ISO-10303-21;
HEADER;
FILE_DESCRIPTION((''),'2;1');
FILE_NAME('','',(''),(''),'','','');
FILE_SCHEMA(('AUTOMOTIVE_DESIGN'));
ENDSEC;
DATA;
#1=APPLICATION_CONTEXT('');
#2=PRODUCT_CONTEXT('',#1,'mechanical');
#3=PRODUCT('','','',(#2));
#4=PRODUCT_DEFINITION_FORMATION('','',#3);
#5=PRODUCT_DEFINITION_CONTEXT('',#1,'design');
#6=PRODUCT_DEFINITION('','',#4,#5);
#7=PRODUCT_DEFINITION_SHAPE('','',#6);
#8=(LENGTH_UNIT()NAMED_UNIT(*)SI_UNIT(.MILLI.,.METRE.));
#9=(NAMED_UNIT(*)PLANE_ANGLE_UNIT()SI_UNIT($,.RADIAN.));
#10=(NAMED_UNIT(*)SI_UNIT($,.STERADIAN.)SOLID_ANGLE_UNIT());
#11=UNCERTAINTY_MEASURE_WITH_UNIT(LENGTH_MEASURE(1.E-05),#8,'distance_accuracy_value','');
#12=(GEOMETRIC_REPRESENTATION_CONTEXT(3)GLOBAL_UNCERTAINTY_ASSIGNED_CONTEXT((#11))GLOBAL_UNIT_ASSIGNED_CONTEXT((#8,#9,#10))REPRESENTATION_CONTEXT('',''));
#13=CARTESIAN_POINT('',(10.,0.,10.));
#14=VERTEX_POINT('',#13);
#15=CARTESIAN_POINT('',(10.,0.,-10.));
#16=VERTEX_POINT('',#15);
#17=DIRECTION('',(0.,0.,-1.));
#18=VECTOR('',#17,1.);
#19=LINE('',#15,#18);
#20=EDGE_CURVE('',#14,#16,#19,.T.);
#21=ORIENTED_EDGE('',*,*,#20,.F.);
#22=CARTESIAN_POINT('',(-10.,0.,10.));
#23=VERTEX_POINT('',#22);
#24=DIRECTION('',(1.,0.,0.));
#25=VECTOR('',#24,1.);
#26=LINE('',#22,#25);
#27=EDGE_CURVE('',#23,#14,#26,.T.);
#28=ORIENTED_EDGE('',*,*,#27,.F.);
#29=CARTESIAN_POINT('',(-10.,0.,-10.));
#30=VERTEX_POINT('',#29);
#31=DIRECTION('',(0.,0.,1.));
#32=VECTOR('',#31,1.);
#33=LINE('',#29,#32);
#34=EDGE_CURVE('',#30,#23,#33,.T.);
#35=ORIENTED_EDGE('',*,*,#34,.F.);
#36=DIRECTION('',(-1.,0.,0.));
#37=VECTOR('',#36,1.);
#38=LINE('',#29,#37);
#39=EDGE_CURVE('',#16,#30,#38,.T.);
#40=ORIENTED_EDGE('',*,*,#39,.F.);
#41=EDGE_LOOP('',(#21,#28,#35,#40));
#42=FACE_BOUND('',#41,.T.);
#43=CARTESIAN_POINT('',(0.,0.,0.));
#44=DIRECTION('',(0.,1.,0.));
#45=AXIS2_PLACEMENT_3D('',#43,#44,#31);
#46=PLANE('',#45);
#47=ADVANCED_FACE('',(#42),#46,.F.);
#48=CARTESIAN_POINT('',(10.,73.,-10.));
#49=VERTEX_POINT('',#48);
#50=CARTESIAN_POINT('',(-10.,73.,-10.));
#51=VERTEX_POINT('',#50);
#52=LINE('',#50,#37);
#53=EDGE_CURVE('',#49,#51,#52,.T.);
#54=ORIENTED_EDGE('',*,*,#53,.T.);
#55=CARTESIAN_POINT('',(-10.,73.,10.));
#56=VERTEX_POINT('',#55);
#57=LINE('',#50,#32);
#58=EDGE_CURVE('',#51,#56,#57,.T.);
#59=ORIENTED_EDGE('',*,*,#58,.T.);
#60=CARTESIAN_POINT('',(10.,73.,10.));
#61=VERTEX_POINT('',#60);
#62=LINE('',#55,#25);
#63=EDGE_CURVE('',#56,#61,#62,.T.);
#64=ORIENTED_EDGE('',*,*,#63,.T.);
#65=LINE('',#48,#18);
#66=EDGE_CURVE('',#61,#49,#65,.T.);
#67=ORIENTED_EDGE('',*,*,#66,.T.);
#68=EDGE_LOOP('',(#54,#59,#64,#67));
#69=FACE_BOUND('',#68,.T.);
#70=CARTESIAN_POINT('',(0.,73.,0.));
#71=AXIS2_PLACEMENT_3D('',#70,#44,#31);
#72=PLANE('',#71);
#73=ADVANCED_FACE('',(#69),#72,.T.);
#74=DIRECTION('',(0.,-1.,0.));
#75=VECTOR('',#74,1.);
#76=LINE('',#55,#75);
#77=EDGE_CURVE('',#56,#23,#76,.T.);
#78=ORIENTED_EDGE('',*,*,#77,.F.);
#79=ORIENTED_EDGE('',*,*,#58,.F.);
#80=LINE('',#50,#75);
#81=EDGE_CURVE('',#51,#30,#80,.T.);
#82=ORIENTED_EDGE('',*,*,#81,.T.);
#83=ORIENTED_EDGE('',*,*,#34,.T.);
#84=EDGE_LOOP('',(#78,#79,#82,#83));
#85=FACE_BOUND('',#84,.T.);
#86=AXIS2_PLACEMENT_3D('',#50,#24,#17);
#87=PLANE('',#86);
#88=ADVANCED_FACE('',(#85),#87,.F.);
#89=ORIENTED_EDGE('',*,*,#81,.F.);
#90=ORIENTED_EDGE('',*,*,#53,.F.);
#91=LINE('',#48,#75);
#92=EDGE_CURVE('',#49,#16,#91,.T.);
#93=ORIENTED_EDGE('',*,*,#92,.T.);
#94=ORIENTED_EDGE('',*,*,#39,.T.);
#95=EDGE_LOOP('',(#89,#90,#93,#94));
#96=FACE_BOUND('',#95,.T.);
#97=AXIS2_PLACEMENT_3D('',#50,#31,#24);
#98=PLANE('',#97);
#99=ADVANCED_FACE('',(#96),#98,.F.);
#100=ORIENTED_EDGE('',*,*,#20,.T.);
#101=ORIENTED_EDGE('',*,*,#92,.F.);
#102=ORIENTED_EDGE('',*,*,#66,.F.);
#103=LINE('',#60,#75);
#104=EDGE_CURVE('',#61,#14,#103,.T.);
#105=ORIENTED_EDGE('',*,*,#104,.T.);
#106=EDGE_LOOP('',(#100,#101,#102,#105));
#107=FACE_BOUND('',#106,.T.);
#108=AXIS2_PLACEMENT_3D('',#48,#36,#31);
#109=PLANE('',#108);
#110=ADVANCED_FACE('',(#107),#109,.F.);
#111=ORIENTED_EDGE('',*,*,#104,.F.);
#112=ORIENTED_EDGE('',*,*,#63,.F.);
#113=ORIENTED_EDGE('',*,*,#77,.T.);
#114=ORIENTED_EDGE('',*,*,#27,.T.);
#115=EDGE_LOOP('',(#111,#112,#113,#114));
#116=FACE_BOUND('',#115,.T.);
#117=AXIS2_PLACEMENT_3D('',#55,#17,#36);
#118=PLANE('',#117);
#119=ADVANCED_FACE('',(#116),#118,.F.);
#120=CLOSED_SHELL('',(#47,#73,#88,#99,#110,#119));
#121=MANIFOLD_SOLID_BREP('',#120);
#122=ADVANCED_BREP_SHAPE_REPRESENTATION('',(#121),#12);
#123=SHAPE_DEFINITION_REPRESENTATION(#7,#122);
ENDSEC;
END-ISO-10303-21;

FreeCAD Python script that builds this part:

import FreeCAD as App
import Part
import Sketcher
Q = App.Units.Quantity


def add_polygon(sketch, points):
    """Adds a closed chain of lines whose ends are joined by coincident constraints."""
    first, n = sketch.GeometryCount, len(points)
    for a, b in zip(points, points[1:] + points[:1]):
        sketch.addGeometry(Part.LineSegment(App.Vector(*a, 0), App.Vector(*b, 0)), False)
    for i in range(n):
        sketch.addConstraint(Sketcher.Constraint("Coincident", first + i, 2, first + (i + 1) % n, 1))

doc = App.newDocument("Part")
body = doc.addObject("PartDesign::Body", "Body")

# Sketch on XZ plane
sketch1 = body.newObject("Sketcher::SketchObject", "Sketch")
sketch1.AttachmentSupport = (doc.getObject("XZ_Plane"), [""])
sketch1.MapMode = "FlatFace"
add_polygon(sketch1, [(-10, -10), (-10, 10), (10, 10), (10, -10)])  # lines 0-3
sketch1.addConstraint(Sketcher.Constraint("Vertical", 0))
sketch1.addConstraint(Sketcher.Constraint("Horizontal", 1))
sketch1.addConstraint(Sketcher.Constraint("Vertical", 2))
sketch1.addConstraint(Sketcher.Constraint("Horizontal", 3))
sketch1.addConstraint(Sketcher.Constraint("Symmetric", 0, 2, 2, 2, -1, 1))
sketch1.addConstraint(Sketcher.Constraint("Equal", 3, 0))
sketch1.addConstraint(Sketcher.Constraint("DistanceX", 1, 1, 1, 2, Q("20 mm")))
pad1 = body.newObject("PartDesign::Pad", "Pad")
pad1.Profile = sketch1
pad1.Length = 73
pad1.Reversed = True

doc.recompute()
